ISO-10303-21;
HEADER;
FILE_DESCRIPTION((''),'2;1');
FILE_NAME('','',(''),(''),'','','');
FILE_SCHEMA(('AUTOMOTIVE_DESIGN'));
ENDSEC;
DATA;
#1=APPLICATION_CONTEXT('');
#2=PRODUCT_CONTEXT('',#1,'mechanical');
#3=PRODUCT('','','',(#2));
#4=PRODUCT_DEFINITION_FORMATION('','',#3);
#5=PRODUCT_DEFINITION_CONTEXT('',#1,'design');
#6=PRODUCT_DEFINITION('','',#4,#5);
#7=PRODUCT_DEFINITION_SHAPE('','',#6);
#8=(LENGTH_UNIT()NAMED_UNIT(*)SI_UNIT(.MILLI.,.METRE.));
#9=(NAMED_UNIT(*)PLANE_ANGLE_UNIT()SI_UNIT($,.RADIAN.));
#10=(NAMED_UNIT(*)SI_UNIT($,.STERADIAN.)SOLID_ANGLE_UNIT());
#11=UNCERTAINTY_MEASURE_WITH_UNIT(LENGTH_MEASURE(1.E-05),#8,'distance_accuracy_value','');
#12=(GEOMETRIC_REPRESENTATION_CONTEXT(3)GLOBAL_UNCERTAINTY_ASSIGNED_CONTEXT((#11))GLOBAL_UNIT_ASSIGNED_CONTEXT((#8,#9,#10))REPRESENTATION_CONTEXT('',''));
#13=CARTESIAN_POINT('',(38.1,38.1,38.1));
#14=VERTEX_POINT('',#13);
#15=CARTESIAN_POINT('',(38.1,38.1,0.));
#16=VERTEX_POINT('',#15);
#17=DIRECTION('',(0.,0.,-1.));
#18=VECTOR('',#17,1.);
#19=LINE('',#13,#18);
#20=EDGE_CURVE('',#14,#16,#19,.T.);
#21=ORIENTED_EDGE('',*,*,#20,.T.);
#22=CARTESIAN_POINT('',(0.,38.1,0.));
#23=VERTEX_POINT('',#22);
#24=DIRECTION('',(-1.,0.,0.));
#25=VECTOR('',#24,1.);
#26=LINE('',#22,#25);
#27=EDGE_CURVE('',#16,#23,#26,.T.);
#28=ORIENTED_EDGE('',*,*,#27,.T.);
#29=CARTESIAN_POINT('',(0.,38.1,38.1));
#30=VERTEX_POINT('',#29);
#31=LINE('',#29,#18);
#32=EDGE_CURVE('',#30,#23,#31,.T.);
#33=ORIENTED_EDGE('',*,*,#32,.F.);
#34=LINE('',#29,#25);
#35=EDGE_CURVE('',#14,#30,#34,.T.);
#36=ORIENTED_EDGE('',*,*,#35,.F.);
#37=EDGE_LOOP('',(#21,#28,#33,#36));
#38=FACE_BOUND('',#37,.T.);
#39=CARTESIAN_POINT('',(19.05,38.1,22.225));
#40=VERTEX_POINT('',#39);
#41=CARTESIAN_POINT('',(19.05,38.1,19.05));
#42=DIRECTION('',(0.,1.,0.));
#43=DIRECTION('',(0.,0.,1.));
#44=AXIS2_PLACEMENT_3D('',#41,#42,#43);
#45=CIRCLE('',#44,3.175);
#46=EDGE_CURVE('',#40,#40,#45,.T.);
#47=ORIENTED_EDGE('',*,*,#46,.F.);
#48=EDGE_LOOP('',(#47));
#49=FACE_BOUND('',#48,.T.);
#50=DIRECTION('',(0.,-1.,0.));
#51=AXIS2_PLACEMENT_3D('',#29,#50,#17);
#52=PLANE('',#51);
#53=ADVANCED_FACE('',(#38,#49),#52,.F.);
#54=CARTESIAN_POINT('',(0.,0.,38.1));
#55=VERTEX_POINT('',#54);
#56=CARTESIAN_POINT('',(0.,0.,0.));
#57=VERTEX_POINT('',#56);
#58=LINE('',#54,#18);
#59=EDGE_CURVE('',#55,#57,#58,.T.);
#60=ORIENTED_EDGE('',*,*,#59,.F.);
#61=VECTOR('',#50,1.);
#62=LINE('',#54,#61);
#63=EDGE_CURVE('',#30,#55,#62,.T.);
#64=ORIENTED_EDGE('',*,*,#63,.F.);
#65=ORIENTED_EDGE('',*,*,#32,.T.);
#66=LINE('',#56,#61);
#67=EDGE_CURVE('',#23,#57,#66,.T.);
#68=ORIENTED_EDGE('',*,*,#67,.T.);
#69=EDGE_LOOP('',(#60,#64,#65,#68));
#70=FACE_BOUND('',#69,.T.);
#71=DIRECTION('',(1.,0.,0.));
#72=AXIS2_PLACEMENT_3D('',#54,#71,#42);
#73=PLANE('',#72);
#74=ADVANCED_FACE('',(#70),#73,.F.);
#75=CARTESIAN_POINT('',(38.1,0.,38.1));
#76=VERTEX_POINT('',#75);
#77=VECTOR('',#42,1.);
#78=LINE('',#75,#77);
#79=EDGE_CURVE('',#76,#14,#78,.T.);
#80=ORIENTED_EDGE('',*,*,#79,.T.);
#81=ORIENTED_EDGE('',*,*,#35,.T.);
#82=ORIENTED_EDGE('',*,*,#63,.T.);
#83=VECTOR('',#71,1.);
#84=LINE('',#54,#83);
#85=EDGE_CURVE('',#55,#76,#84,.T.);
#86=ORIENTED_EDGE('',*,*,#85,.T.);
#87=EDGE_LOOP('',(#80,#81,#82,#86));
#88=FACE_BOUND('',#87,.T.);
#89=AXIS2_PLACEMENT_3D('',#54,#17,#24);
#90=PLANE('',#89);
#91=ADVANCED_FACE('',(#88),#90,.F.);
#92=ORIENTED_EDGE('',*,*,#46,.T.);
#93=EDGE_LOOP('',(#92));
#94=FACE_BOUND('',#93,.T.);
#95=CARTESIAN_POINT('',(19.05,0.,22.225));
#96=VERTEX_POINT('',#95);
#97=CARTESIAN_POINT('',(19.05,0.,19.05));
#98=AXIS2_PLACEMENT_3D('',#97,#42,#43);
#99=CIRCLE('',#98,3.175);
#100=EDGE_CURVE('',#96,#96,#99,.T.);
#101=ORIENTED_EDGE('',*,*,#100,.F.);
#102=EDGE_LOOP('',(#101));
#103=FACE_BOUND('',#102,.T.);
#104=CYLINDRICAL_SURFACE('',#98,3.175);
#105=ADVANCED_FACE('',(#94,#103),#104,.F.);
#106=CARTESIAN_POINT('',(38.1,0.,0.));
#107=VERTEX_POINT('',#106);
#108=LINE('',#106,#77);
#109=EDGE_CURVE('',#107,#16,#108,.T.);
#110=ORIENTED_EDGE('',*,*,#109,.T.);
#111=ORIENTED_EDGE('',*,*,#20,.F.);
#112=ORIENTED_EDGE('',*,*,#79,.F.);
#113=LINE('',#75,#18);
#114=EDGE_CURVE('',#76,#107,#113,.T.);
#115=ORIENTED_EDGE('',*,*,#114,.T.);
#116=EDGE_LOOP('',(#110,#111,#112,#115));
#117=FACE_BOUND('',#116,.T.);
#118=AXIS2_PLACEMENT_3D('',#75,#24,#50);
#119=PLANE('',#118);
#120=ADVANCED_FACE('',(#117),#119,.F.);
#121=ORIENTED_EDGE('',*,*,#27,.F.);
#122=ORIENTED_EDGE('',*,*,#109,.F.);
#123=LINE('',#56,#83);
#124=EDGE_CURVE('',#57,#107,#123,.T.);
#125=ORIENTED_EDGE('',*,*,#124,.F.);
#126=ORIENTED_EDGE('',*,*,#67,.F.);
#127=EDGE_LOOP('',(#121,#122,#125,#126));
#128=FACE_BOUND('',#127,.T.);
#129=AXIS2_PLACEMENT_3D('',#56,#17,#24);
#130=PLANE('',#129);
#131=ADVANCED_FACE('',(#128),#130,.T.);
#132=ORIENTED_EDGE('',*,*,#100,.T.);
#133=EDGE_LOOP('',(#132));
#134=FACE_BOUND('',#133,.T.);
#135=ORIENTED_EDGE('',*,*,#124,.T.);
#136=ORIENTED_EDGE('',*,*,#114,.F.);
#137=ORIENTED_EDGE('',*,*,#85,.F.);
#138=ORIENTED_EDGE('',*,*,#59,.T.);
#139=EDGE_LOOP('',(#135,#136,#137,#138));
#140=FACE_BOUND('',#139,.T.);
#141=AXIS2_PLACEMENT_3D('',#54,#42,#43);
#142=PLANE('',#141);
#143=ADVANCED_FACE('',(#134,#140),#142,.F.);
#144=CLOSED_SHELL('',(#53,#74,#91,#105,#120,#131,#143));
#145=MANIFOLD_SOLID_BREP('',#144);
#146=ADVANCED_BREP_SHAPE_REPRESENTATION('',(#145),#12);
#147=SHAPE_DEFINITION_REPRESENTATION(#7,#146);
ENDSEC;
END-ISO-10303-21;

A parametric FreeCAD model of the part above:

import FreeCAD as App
import Part
import Sketcher
Q = App.Units.Quantity


def add_polygon(sketch, points):
    """Adds a closed chain of lines whose ends are joined by coincident constraints."""
    first, n = sketch.GeometryCount, len(points)
    for a, b in zip(points, points[1:] + points[:1]):
        sketch.addGeometry(Part.LineSegment(App.Vector(*a, 0), App.Vector(*b, 0)), False)
    for i in range(n):
        sketch.addConstraint(Sketcher.Constraint("Coincident", first + i, 2, first + (i + 1) % n, 1))

doc = App.newDocument("Part")
body = doc.addObject("PartDesign::Body", "Body")

# Sketch on XY plane
sketch1 = body.newObject("Sketcher::SketchObject", "Sketch")
sketch1.AttachmentSupport = (doc.getObject("XY_Plane"), [""])
sketch1.MapMode = "FlatFace"
add_polygon(sketch1, [(0, 38.1), (0, 0), (38.1, 0), (38.1, 38.1)])  # lines 0-3
sketch1.addConstraint([
    Sketcher.Constraint("Vertical", 0),
    Sketcher.Constraint("Horizontal", 1),
    Sketcher.Constraint("Vertical", 2),
    Sketcher.Constraint("Horizontal", 3),
    Sketcher.Constraint("Coincident", 0, 2, -1, 1),
    Sketcher.Constraint("Equal", 3, 0),
    Sketcher.Constraint("DistanceX", 1, 1, 1, 2, Q("1.5 in")),
])
pad1 = body.newObject("PartDesign::Pad", "Pad")
pad1.Profile = sketch1
pad1.Length = Q("1.5 in")

# Sketch on XZ plane
sketch2 = body.newObject("Sketcher::SketchObject", "Sketch001")
sketch2.AttachmentSupport = (doc.getObject("XZ_Plane"), [""])
sketch2.MapMode = "FlatFace"
sketch2.AttachmentOffset = App.Placement(App.Vector(0, 0, -1.5 * 25.4), App.Rotation())
sketch2.addGeometry(Part.Circle(App.Vector(19.05, 19.05, 0), App.Vector(0, 0, 1), 3.175), False)
sketch2.addConstraint([
    Sketcher.Constraint("Diameter", 0, Q("0.25 in")),
    Sketcher.Constraint("DistanceX", -1, 1, 0, 3, Q("0.75 in")),
    Sketcher.Constraint("DistanceY", -1, 1, 0, 3, Q("0.75 in")),
])
pocket1 = body.newObject("PartDesign::Pocket", "Pocket")
pocket1.Profile = sketch2
pocket1.Type = "ThroughAll"
pocket1.Reversed = True

doc.recompute()
